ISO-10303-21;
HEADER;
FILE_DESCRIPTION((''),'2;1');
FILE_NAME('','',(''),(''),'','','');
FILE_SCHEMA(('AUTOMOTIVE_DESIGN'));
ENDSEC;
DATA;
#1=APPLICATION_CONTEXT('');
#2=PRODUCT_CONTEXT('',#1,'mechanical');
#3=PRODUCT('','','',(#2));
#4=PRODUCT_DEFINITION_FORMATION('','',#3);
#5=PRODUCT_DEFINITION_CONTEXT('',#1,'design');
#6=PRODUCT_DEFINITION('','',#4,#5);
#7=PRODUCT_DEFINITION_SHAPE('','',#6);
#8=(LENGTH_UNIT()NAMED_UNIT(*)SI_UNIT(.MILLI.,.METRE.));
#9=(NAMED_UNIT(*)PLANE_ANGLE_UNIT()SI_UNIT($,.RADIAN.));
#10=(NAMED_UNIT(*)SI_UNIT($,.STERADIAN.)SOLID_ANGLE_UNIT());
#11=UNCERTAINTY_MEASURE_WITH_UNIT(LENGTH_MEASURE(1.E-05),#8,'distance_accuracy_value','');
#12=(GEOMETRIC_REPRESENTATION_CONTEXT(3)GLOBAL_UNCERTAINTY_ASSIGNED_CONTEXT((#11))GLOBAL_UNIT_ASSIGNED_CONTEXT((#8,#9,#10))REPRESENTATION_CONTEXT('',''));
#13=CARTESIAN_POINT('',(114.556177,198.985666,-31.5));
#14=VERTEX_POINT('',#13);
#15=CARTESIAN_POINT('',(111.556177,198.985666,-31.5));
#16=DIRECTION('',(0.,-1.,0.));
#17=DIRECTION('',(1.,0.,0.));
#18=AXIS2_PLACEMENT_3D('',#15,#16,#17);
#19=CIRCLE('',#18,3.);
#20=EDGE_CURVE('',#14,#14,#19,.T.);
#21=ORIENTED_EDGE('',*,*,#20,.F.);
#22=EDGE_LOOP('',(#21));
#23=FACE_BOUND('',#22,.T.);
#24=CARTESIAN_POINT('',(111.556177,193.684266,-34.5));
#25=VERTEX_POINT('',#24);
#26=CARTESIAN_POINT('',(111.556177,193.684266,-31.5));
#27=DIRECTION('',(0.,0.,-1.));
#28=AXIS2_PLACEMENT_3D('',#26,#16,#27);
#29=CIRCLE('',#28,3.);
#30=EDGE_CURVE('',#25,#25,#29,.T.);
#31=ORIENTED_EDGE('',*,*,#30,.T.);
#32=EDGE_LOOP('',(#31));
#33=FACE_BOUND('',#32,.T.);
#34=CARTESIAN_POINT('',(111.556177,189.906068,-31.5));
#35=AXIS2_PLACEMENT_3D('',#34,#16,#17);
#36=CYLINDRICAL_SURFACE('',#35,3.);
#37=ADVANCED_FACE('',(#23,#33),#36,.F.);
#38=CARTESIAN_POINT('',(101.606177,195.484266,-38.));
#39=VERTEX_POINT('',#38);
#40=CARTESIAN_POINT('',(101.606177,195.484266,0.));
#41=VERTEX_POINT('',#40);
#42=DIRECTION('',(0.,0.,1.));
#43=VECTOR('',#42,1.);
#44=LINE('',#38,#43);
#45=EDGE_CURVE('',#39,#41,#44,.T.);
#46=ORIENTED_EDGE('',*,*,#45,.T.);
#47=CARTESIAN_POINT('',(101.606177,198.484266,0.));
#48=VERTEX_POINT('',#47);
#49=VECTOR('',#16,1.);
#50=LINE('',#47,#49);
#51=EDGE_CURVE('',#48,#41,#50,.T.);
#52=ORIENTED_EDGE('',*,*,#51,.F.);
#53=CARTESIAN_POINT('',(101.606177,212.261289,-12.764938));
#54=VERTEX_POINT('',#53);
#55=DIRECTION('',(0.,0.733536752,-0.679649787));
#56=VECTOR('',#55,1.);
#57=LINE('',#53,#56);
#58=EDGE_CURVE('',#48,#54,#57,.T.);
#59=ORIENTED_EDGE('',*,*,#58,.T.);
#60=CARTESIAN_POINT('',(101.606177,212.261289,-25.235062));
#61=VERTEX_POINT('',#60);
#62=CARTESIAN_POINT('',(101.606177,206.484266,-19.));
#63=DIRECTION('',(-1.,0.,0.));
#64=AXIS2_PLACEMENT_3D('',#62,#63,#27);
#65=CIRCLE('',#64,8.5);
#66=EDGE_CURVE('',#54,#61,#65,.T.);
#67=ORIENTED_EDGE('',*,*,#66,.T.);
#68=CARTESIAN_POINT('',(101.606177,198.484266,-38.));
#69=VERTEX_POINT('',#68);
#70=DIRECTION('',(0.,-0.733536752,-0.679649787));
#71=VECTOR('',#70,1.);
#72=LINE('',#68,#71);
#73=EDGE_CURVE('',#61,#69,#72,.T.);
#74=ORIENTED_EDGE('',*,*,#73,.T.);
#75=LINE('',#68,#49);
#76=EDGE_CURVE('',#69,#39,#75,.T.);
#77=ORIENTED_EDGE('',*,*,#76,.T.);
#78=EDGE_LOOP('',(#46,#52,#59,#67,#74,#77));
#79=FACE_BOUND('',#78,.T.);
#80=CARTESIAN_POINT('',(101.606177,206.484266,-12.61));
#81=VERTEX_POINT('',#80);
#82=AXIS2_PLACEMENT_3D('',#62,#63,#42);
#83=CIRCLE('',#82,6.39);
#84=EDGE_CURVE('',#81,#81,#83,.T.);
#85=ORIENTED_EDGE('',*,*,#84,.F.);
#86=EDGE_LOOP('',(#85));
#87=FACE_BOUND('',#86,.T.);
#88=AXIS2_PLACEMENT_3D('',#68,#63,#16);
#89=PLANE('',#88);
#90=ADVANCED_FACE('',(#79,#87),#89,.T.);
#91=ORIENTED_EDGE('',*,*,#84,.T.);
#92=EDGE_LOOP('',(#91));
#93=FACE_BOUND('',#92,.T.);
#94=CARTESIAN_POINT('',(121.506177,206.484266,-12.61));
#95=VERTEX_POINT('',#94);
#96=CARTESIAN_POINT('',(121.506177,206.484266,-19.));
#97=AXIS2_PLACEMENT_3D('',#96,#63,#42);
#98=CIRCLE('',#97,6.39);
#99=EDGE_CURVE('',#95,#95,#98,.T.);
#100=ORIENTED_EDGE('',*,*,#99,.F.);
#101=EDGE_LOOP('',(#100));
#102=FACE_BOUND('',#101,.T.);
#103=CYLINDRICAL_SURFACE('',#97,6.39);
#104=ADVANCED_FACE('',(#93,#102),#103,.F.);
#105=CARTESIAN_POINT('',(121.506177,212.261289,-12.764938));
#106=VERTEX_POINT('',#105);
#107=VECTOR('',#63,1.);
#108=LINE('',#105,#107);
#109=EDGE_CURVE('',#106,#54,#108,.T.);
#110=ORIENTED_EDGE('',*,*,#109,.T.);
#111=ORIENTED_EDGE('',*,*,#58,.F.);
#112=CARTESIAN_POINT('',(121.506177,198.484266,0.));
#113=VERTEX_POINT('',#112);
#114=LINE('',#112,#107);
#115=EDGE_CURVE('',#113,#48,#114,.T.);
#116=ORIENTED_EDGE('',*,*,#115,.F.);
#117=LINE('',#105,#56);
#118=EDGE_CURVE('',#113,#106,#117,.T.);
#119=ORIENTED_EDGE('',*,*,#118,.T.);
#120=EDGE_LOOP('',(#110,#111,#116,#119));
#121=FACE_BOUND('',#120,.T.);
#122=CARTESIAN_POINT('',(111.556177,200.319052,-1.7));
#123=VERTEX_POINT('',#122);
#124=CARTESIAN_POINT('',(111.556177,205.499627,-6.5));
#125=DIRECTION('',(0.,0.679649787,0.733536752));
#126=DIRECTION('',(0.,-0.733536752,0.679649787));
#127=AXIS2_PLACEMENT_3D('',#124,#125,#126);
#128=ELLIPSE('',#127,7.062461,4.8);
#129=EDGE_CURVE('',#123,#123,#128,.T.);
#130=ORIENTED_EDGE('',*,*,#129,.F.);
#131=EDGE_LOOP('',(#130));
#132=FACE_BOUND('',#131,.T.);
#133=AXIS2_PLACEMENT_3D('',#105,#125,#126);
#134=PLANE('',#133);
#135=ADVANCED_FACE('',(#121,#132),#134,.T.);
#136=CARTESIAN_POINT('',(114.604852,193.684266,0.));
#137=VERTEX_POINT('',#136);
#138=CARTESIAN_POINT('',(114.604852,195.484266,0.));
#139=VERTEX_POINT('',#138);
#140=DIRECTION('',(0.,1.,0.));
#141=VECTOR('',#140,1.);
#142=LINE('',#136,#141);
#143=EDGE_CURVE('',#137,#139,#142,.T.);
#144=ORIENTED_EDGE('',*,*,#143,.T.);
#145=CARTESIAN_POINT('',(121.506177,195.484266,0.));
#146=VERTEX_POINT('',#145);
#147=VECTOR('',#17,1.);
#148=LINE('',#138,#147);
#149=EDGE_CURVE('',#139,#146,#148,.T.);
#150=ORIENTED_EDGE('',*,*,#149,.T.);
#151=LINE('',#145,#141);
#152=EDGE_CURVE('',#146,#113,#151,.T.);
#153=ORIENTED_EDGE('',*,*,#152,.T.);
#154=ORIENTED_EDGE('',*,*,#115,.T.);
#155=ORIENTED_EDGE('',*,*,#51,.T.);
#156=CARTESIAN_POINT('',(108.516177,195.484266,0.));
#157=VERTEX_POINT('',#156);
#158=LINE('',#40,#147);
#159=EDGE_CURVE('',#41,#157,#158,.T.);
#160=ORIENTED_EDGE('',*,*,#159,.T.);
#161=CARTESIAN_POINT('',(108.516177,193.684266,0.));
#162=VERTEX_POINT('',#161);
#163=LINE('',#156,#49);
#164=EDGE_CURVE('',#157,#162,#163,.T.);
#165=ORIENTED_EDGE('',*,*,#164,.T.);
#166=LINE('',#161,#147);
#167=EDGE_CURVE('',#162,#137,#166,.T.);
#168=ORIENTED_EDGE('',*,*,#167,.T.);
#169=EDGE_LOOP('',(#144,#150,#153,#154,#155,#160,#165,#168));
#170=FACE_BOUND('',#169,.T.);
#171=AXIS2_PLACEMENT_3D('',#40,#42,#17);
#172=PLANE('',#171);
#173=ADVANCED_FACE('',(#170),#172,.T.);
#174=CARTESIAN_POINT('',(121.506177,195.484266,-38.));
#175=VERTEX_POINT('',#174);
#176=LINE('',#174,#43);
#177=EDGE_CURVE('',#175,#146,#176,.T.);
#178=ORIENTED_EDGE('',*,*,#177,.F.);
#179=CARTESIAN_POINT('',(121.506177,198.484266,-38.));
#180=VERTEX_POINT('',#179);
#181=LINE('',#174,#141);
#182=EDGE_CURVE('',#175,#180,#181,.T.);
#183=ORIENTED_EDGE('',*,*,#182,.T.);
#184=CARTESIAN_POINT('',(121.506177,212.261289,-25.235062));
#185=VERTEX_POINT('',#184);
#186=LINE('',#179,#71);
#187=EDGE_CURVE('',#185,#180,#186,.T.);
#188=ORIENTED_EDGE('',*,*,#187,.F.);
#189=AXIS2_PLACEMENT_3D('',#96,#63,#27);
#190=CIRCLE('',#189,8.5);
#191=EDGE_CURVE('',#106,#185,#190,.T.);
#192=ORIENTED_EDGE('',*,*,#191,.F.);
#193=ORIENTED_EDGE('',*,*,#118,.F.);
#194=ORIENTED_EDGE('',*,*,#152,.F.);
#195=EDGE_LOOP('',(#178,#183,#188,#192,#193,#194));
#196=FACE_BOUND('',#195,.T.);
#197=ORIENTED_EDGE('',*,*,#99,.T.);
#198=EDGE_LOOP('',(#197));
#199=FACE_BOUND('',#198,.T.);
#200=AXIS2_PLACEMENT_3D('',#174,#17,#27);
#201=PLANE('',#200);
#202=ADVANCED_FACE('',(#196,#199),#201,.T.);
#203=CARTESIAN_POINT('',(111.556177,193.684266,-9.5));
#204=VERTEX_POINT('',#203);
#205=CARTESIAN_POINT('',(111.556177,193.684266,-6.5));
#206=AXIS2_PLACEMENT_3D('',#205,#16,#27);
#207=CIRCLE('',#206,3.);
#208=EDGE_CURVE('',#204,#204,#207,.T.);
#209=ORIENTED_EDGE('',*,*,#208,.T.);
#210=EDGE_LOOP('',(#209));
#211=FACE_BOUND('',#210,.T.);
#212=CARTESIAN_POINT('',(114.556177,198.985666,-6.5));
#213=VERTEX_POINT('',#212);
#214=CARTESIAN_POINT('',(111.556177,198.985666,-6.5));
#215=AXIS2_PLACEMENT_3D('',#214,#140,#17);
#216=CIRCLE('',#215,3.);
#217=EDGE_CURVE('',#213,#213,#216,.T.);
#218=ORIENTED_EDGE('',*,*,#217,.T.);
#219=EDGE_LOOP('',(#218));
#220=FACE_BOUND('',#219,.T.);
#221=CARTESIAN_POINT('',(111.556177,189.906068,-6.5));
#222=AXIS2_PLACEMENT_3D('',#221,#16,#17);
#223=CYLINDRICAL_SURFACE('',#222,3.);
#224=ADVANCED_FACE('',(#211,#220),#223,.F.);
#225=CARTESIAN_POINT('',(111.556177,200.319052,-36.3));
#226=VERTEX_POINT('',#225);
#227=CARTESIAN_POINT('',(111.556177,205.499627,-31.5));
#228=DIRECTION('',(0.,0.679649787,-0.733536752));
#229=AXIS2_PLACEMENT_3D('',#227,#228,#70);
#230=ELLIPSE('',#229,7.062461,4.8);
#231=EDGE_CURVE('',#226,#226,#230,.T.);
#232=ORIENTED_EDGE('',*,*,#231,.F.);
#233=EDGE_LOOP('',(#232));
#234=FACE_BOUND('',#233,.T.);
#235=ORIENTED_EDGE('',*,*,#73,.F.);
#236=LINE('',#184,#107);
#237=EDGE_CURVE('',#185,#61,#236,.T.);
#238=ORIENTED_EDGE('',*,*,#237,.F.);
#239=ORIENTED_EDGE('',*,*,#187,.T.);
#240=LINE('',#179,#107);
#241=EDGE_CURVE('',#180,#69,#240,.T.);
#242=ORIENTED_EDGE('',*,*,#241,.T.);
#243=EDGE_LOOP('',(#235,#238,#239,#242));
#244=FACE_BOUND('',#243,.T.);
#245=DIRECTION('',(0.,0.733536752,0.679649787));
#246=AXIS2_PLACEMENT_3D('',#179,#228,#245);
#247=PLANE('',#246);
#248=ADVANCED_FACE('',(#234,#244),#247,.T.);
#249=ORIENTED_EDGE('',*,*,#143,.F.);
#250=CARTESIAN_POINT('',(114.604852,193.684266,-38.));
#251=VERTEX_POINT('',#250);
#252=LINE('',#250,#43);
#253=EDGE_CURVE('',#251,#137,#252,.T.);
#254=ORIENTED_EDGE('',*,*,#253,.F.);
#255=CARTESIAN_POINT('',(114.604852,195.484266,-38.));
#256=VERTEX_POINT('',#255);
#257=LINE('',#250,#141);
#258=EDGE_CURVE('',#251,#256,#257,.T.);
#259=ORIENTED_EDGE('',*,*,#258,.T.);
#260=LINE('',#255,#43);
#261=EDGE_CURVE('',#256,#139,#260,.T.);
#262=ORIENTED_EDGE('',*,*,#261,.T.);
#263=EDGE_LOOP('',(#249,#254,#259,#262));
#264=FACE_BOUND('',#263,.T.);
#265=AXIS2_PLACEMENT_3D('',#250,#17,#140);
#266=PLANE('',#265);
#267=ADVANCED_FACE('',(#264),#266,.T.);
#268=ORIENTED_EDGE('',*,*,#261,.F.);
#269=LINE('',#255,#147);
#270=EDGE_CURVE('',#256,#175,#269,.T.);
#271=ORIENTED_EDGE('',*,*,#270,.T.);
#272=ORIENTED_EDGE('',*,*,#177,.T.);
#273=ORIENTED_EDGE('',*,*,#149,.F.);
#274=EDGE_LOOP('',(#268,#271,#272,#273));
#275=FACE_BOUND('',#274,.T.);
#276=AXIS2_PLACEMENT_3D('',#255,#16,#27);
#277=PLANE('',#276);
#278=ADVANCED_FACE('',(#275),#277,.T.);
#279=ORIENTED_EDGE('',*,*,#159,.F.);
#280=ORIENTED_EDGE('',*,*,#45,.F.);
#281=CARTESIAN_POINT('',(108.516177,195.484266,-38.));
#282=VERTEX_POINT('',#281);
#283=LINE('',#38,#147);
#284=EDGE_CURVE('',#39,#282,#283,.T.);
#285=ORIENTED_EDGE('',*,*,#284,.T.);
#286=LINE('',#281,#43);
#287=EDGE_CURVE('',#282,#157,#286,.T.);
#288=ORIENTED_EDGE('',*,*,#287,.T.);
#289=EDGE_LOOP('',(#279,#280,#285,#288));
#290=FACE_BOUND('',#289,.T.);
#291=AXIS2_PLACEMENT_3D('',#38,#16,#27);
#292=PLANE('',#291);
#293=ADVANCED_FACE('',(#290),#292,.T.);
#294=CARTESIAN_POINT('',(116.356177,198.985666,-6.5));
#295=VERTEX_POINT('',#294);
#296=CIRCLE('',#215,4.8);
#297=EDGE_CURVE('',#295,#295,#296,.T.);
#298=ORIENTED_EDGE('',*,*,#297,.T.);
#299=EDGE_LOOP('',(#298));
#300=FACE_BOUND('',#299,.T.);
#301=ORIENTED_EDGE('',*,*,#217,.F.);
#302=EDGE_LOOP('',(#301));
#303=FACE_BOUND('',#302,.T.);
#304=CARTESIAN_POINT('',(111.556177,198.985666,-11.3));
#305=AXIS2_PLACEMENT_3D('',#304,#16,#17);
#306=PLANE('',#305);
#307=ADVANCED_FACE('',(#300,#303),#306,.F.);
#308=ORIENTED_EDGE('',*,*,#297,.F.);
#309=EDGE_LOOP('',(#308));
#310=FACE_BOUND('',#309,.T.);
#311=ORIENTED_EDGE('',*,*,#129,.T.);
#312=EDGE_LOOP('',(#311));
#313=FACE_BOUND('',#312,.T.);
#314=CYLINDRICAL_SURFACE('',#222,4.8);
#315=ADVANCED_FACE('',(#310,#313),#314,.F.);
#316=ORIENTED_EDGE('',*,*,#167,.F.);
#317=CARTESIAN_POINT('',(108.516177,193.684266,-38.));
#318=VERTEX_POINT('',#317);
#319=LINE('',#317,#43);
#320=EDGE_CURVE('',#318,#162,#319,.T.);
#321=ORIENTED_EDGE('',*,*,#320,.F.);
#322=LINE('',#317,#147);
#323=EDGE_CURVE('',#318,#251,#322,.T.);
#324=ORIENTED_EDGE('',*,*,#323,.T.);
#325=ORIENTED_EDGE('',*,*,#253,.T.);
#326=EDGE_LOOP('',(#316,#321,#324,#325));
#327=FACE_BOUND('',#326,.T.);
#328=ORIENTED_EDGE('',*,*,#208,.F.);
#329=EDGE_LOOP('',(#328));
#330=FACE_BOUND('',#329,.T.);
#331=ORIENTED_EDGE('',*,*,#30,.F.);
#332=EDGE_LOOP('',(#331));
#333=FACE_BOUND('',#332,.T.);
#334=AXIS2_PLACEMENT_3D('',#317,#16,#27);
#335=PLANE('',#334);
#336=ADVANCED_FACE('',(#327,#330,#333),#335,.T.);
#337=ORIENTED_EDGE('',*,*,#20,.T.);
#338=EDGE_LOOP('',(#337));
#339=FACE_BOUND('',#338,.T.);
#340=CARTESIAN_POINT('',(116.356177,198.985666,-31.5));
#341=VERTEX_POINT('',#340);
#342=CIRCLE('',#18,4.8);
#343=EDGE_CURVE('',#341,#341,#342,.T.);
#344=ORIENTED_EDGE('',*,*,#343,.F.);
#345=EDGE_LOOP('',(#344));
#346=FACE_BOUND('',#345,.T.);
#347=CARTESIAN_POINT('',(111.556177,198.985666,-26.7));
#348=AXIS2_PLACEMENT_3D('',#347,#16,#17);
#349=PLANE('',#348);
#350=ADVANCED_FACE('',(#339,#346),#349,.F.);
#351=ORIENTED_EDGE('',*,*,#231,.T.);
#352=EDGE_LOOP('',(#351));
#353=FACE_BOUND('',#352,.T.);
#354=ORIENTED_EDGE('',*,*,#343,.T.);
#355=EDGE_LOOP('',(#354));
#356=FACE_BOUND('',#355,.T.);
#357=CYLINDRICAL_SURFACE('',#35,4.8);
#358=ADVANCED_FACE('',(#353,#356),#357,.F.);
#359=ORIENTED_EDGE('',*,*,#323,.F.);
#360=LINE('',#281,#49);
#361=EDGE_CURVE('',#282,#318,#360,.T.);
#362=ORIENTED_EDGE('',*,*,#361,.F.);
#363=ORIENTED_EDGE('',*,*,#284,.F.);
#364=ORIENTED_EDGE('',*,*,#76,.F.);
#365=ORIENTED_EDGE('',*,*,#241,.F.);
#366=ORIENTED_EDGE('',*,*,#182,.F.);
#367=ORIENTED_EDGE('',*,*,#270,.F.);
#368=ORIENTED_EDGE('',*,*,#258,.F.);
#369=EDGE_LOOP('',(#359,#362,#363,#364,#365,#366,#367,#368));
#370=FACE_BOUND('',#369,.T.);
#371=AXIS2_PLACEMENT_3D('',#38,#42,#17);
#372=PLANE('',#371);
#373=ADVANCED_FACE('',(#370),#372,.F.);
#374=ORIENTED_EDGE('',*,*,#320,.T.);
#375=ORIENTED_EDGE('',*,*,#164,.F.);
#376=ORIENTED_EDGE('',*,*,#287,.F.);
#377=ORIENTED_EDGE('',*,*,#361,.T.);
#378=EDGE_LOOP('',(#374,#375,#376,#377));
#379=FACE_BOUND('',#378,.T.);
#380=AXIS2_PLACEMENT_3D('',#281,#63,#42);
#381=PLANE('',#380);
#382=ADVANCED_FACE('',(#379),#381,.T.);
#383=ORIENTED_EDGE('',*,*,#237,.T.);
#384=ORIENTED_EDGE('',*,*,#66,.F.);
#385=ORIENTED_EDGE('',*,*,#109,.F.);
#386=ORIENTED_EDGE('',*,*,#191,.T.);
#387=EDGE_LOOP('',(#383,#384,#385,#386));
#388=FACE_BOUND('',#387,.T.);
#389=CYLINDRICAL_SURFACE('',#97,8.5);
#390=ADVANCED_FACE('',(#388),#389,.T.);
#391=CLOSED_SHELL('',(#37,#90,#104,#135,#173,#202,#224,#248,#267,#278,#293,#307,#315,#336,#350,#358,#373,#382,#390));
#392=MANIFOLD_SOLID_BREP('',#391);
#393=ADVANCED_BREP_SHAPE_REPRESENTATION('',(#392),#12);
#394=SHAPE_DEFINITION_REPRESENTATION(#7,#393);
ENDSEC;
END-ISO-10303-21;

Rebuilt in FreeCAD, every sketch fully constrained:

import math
import FreeCAD as App
import Part
import Sketcher

V = App.Vector


def add_polygon(sketch, points):
    """Adds a closed chain of lines whose ends are joined by coincident constraints."""
    first, n = sketch.GeometryCount, len(points)
    for a, b in zip(points, points[1:] + points[:1]):
        sketch.addGeometry(Part.LineSegment(App.Vector(*a, 0), App.Vector(*b, 0)), False)
    for i in range(n):
        sketch.addConstraint(Sketcher.Constraint("Coincident", first + i, 2, first + (i + 1) % n, 1))

doc = App.newDocument("Part")
body = doc.addObject("PartDesign::Body", "Body")

sketch1 = doc.addObject("Sketcher::SketchObject", "Sketch")
body.addObject(sketch1)
sketch1.AttachmentSupport = (doc.XY_Plane, [""])
sketch1.MapMode = "FlatFace"
add_polygon(sketch1, [(101.6, 195.5), (108.5, 195.5), (108.5, 193.7), (114.6, 193.7), (114.6, 195.5), (121.5, 195.5), (121.5, 198.5), (101.6, 198.5)])
sketch1.addConstraint(Sketcher.Constraint("Horizontal", 0))
sketch1.addConstraint(Sketcher.Constraint("Vertical", 1))
sketch1.addConstraint(Sketcher.Constraint("Horizontal", 2))
sketch1.addConstraint(Sketcher.Constraint("Vertical", 3))
sketch1.addConstraint(Sketcher.Constraint("Horizontal", 4))
sketch1.addConstraint(Sketcher.Constraint("Vertical", 5))
sketch1.addConstraint(Sketcher.Constraint("Horizontal", 6))
sketch1.addConstraint(Sketcher.Constraint("Vertical", 7))
sketch1.addConstraint(Sketcher.Constraint("Horizontal", 0, 2, 3, 2))
sketch1.addConstraint(Sketcher.Constraint("DistanceY", 5, 1, 5, 2, 3.0))
sketch1.addConstraint(Sketcher.Constraint("DistanceX", 6, 2, 6, 1, 19.9))
sketch1.addConstraint(Sketcher.Constraint("DistanceY", 1, 2, 1, 1, 1.8))
sketch1.addConstraint(Sketcher.Constraint("DistanceX", 0, 1, 0, 2, 6.91))
sketch1.addConstraint(Sketcher.Constraint("DistanceX", 2, 1, 2, 2, 6.088675))
sketch1.addConstraint(Sketcher.Constraint("DistanceX", -1, 1, 2, 2, 114.604852))
sketch1.addConstraint(Sketcher.Constraint("DistanceY", -1, 1, 0, 2, 195.484266))
pad1 = doc.addObject("PartDesign::Pad", "Pad")
body.addObject(pad1)
pad1.Profile = sketch1
pad1.Length = 38
pad1.Reversed = True

sketch2 = doc.addObject("Sketcher::SketchObject", "Sketch001")
body.addObject(sketch2)
sketch2.AttachmentSupport = (doc.YZ_Plane, [""])
sketch2.MapMode = "FlatFace"
sketch2.AttachmentOffset = App.Placement(V(0, 0, 101.606177), App.Rotation())
sketch2.addGeometry(Part.LineSegment(V(212, -25, 0), V(198, -38, 0)), False)
sketch2.addGeometry(Part.LineSegment(V(198, -38, 0), V(198, 0, 0)), False)
sketch2.addGeometry(Part.LineSegment(V(198, 0, 0), V(212, -13, 0)), False)
sketch2.addGeometry(Part.ArcOfCircle(Part.Circle(V(206, -19, 0), V(0, 0, 1), 8), math.radians(-47), math.radians(47)), False)
sketch2.addGeometry(Part.Circle(V(206, -19, 0), V(0, 0, 1), 6), False)
sketch2.addConstraint(Sketcher.Constraint("Coincident", 0, 2, 1, 1))
sketch2.addConstraint(Sketcher.Constraint("Coincident", 1, 2, 2, 1))
sketch2.addConstraint(Sketcher.Constraint("Tangent", 2, 2, 3, 2))
sketch2.addConstraint(Sketcher.Constraint("Tangent", 3, 1, 0, 1))
sketch2.addConstraint(Sketcher.Constraint("Vertical", 1))
sketch2.addConstraint(Sketcher.Constraint("Coincident", 4, 3, 3, 3))
sketch2.addConstraint(Sketcher.Constraint("PointOnObject", 1, 2, -1))
sketch2.addConstraint(Sketcher.Constraint("Vertical", 2, 2, 3, 1))
sketch2.addConstraint(Sketcher.Constraint("Radius", 3, 8.5))
sketch2.addConstraint(Sketcher.Constraint("Diameter", 4, 12.78))
sketch2.addConstraint(Sketcher.Constraint("DistanceY", 1, 1, 1, 2, 38.0))
sketch2.addConstraint(Sketcher.Constraint("DistanceX", 0, 2, 4, 3, 8.0))
sketch2.addConstraint(Sketcher.Constraint("DistanceX", -1, 1, 2, 2, 212.261289))
pad2 = doc.addObject("PartDesign::Pad", "Pad001")
body.addObject(pad2)
pad2.Profile = sketch2
pad2.Length = 19.9

sketch3 = doc.addObject("Sketcher::SketchObject", "Sketch002")
body.addObject(sketch3)
sketch3.AttachmentSupport = (doc.YZ_Plane, [""])
sketch3.MapMode = "FlatFace"
sketch3.AttachmentOffset = App.Placement(V(0, 0, 111.556177), App.Rotation())
add_polygon(sketch3, [(199, -26.7), (211.7, -26.7), (211.7, -31.5), (189.9, -31.5), (189.9, -28.5), (199, -28.5)])
sketch3.addGeometry(Part.LineSegment(V(189.9, -31.5, 0), V(211.7, -31.5, 0)), True)
sketch3.addConstraint(Sketcher.Constraint("Horizontal", 0))
sketch3.addConstraint(Sketcher.Constraint("Vertical", 1))
sketch3.addConstraint(Sketcher.Constraint("Horizontal", 2))
sketch3.addConstraint(Sketcher.Constraint("Vertical", 3))
sketch3.addConstraint(Sketcher.Constraint("Horizontal", 4))
sketch3.addConstraint(Sketcher.Constraint("Vertical", 5))
sketch3.addConstraint(Sketcher.Constraint("Horizontal", 6))
sketch3.addConstraint(Sketcher.Constraint("Coincident", 6, 1, 2, 2))
sketch3.addConstraint(Sketcher.Constraint("Vertical", 0, 2, 6, 2))
sketch3.addConstraint(Sketcher.Constraint("DistanceY", 3, 1, 3, 2, 3.0))
sketch3.addConstraint(Sketcher.Constraint("DistanceY", 1, 2, 1, 1, 4.8))
sketch3.addConstraint(Sketcher.Constraint("DistanceY", 0, 2, -1, 1, 26.7))
sketch3.addConstraint(Sketcher.Constraint("DistanceX", 0, 1, 0, 2, 12.684351))
sketch3.addConstraint(Sketcher.Constraint("DistanceX", 2, 2, 2, 1, 21.763949))
sketch3.addConstraint(Sketcher.Constraint("DistanceX", -1, 1, 2, 2, 189.906068))
groove = doc.addObject("PartDesign::Groove", "Groove")
body.addObject(groove)
groove.Profile = sketch3
groove.ReferenceAxis = (sketch3, ["Axis0"])
groove.Angle = 360
doc.recompute()

datumplane = doc.addObject("PartDesign::Plane", "DatumPlane")
body.addObject(datumplane)
datumplane.AttachmentSupport = (doc.XY_Plane, [""])
datumplane.MapMode = "FlatFace"
datumplane.AttachmentOffset = App.Placement(V(0, 0, -19), App.Rotation())
mirrored = doc.addObject("PartDesign::Mirrored", "Mirrored")
body.addObject(mirrored)
mirrored.Originals = [groove]
mirrored.MirrorPlane = (datumplane, [""])
body.Tip = mirrored

doc.recompute()
